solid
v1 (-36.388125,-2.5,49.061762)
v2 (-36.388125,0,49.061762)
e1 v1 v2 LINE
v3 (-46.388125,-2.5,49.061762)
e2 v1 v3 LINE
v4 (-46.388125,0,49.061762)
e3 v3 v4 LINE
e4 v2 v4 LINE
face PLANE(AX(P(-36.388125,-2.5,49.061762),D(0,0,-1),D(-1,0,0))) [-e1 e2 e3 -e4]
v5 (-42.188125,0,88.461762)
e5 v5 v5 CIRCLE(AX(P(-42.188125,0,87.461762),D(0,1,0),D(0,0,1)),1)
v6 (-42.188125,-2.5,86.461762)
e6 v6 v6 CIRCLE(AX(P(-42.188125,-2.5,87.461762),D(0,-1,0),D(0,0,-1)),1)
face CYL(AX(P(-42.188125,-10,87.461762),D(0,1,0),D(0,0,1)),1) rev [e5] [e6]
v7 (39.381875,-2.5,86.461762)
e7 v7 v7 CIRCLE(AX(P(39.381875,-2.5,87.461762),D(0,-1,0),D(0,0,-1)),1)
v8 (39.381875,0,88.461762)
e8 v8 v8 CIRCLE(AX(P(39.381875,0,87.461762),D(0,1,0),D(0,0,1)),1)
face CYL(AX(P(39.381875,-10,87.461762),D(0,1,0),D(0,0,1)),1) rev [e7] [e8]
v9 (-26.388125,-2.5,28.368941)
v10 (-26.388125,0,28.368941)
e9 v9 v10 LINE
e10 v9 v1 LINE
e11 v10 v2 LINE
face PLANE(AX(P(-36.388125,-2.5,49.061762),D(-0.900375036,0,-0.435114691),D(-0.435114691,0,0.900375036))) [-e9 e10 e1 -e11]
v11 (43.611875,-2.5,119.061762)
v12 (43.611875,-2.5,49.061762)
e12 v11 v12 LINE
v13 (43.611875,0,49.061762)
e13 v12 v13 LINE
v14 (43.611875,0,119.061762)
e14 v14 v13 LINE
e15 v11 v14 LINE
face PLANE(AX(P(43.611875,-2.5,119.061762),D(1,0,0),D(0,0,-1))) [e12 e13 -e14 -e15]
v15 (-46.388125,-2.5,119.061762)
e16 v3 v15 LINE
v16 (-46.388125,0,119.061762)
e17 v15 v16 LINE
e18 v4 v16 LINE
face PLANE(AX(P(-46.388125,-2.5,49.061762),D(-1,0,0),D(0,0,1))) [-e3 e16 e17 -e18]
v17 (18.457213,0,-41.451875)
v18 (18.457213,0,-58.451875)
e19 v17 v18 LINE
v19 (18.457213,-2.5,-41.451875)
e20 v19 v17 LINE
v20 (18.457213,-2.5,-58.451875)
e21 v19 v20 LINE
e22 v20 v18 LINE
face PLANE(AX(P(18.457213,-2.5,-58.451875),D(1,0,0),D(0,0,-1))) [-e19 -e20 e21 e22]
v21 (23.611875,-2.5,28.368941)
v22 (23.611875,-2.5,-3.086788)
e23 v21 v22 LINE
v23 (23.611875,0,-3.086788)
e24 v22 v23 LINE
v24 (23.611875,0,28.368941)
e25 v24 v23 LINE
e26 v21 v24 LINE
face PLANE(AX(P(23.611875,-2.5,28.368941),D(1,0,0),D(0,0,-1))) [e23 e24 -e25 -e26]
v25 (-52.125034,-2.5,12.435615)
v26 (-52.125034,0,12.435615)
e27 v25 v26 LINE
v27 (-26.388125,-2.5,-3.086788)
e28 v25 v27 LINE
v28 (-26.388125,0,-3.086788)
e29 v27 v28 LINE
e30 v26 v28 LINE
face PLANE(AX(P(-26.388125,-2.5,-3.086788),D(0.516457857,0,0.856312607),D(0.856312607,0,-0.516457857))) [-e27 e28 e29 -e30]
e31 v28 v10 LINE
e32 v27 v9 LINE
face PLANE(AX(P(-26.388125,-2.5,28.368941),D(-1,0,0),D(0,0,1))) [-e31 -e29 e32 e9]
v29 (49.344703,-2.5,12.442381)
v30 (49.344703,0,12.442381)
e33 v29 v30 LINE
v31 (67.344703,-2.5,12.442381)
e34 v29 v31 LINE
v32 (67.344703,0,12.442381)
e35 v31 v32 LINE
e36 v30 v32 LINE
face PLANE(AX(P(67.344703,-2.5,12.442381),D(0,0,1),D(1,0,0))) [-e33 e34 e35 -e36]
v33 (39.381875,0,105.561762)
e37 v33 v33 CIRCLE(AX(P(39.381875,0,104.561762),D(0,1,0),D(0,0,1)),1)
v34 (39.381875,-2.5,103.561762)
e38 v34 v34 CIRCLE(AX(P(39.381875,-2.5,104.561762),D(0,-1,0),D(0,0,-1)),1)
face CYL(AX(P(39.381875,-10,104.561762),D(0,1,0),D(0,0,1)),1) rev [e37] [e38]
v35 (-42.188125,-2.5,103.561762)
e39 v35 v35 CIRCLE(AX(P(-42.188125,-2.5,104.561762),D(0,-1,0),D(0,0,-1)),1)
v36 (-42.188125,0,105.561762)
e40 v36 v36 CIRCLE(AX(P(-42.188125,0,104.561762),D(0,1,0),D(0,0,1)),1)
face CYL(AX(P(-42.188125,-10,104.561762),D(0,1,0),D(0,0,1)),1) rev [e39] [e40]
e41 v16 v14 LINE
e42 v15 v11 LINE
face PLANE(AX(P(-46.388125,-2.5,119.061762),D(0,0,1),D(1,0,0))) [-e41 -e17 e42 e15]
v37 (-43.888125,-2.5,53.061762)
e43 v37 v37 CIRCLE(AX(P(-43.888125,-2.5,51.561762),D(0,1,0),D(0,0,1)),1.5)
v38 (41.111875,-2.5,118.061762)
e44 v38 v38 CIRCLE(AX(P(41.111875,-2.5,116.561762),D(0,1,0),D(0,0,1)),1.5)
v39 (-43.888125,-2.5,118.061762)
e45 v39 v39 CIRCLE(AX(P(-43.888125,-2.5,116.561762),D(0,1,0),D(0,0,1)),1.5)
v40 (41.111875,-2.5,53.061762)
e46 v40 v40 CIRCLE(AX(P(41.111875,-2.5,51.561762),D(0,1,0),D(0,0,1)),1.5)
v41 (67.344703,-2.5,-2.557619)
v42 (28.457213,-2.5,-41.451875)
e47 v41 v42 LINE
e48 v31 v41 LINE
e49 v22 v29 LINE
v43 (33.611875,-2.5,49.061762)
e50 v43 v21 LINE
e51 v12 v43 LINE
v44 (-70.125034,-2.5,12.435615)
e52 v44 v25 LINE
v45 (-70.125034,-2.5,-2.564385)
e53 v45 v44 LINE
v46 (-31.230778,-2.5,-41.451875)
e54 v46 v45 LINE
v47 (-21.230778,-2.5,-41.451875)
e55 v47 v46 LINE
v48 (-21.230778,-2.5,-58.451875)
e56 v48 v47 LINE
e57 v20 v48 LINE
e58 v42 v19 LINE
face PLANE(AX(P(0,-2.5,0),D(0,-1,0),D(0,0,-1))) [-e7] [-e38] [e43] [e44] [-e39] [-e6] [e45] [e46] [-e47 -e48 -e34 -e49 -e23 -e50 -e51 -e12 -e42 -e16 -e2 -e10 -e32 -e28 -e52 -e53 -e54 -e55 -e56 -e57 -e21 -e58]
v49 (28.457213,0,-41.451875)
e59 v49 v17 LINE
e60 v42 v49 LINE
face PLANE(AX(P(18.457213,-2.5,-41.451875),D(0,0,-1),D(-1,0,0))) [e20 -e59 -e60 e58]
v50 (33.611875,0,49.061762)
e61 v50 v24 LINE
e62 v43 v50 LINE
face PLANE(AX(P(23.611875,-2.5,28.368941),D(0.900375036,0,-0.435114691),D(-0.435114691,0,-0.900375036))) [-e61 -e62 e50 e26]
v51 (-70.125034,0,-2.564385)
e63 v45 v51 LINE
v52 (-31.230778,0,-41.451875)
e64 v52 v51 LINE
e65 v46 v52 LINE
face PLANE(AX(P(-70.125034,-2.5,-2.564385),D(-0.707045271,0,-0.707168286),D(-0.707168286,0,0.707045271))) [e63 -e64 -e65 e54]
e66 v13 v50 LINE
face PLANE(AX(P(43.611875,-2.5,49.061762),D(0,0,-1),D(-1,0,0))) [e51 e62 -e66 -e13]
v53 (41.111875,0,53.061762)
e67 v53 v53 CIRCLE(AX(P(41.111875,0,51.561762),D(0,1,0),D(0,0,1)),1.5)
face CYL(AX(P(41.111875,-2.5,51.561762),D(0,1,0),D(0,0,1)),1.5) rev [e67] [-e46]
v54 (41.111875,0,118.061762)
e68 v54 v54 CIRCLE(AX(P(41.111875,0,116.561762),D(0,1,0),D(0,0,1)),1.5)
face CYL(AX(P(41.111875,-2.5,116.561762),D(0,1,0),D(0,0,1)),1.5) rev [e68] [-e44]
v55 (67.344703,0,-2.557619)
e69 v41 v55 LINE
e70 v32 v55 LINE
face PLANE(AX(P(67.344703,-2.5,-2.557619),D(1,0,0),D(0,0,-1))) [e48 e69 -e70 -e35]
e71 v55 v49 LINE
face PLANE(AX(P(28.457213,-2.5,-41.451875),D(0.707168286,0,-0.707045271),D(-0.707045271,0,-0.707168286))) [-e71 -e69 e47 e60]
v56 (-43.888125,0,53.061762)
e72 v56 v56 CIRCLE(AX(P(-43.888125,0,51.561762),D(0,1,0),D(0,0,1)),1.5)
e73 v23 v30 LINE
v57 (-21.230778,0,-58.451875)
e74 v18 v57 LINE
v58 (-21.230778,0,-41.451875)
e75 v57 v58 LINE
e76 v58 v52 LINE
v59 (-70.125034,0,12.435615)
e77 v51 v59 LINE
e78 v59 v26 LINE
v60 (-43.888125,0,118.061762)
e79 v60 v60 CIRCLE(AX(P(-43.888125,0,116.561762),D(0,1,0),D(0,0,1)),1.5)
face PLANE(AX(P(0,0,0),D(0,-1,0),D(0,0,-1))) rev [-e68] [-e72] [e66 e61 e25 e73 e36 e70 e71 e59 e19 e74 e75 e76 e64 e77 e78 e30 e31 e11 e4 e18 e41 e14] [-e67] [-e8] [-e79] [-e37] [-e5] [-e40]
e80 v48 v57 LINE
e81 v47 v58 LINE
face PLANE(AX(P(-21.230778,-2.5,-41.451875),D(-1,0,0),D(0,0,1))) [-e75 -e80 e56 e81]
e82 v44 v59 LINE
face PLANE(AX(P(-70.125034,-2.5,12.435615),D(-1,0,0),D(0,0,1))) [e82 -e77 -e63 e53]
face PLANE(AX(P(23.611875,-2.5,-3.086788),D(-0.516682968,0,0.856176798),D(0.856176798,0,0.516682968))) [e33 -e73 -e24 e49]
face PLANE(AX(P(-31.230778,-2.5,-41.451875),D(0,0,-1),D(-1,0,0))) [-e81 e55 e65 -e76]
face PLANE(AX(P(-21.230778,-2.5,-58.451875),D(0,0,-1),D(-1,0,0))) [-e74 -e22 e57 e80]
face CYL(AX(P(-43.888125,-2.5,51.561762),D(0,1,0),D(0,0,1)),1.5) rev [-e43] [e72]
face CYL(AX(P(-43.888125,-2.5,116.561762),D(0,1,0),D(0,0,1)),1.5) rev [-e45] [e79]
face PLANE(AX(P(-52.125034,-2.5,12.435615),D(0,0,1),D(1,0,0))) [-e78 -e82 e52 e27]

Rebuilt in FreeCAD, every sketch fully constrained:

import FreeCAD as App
import Part
import Sketcher
from FreeCAD import Vector
Q = App.Units.Quantity


def add_polygon(sketch, points):
    """Adds a closed chain of lines whose ends are joined by coincident constraints."""
    first, n = sketch.GeometryCount, len(points)
    for a, b in zip(points, points[1:] + points[:1]):
        sketch.addGeometry(Part.LineSegment(App.Vector(*a, 0), App.Vector(*b, 0)), False)
    for i in range(n):
        sketch.addConstraint(Sketcher.Constraint("Coincident", first + i, 2, first + (i + 1) % n, 1))

doc = App.newDocument("Part")
params = doc.addObject("Spreadsheet::Sheet", "Params")
for row, (alias, value) in enumerate([
    ("sketch1_diameter", "3 mm"),
    ("sketch1_width", "10 mm"),
    ("sketch1_width2", "90 mm"),
    ("sketch1_width3", "18 mm"),
    ("sketch1_height", "70 mm"),
    ("pad1_length", "2.5 mm"),
    ("sketch2_diameter", "2 mm"),
    ("pocket1_length", "10 mm"),
    ("sketch3_diameter", "2 mm"),
    ("pocket2_length", "10 mm"),
], start=1):
    params.set(f"A{row}", alias)
    params.set(f"B{row}", "=" + value)
    params.setAlias(f"B{row}", alias)

body = doc.addObject("PartDesign::Body", "Body")

sketch1 = body.newObject("Sketcher::SketchObject", "Sketch")
sketch1.AttachmentSupport = (doc.getObject("XZ_Plane"), [""])
sketch1.MapMode = "FlatFace"
add_polygon(sketch1, [(-36.4, 49.1), (-46.4, 49.1), (-46.4, 119.1), (43.6, 119.1), (43.6, 49.1), (33.6, 49.1), (23.6, 28.4), (23.6, -3.1), (49.3, 12.4), (67.3, 12.4), (67.3, -2.6), (28.5, -41.5), (18.5, -41.5), (18.5, -58.5), (-21.2, -58.5), (-21.2, -41.5), (-31.2, -41.5), (-70.1, -2.6), (-70.1, 12.4), (-52.1, 12.4), (-26.4, -3.1), (-26.4, 28.4)])
sketch1.addGeometry(Part.Circle(Vector(-43.9, 116.6, 0), Vector(0, 0, 1), 1.5), False)
sketch1.addGeometry(Part.Circle(Vector(41.1, 116.6, 0), Vector(0, 0, 1), 1.5), False)
sketch1.addGeometry(Part.Circle(Vector(-43.9, 51.6, 0), Vector(0, 0, 1), 1.5), False)
sketch1.addGeometry(Part.Circle(Vector(41.1, 51.6, 0), Vector(0, 0, 1), 1.5), False)
sketch1.addConstraint([
    Sketcher.Constraint("Horizontal", 0),
    Sketcher.Constraint("Vertical", 1),
    Sketcher.Constraint("Horizontal", 2),
    Sketcher.Constraint("Vertical", 3),
    Sketcher.Constraint("Horizontal", 4),
    Sketcher.Constraint("Vertical", 6),
    Sketcher.Constraint("Horizontal", 8),
    Sketcher.Constraint("Vertical", 9),
    Sketcher.Constraint("Horizontal", 11),
    Sketcher.Constraint("Vertical", 12),
    Sketcher.Constraint("Horizontal", 13),
    Sketcher.Constraint("Vertical", 14),
    Sketcher.Constraint("Horizontal", 15),
    Sketcher.Constraint("Vertical", 17),
    Sketcher.Constraint("Horizontal", 18),
    Sketcher.Constraint("Vertical", 20),
    Sketcher.Constraint("Equal", 22, 23),
    Sketcher.Constraint("Equal", 23, 24),
    Sketcher.Constraint("Equal", 24, 25),
    Sketcher.Constraint("Perpendicular", 10, 16),
    Sketcher.Constraint("Horizontal", 22, 3, 23, 3),
    Sketcher.Constraint("Horizontal", 24, 3, 25, 3),
    Sketcher.Constraint("Horizontal", 0, 2, 3, 2),
    Sketcher.Constraint("Horizontal", 11, 2, 14, 2),
    Sketcher.Constraint("Horizontal", 6, 2, 19, 2),
    Sketcher.Constraint("Horizontal", 5, 2, 20, 2),
    Sketcher.Constraint("Vertical", 22, 3, 24, 3),
    Sketcher.Constraint("Vertical", 23, 3, 25, 3),
    Sketcher.Constraint("Equal", 0, 4),
    Sketcher.Constraint("Equal", 4, 11),
    Sketcher.Constraint("Equal", 11, 15),
    Sketcher.Constraint("Equal", 8, 18),
    Sketcher.Constraint("Equal", 9, 17),
    Sketcher.Constraint("Equal", 10, 16),
    Sketcher.Constraint("Equal", 7, 19),
    Sketcher.Constraint("Equal", 5, 21),
    Sketcher.Constraint("Diameter", 22, Q("3 mm")),
    Sketcher.Constraint("DistanceX", 0, 2, 0, 1, Q("10 mm")),
    Sketcher.Constraint("DistanceX", 2, 1, 2, 2, Q("90 mm")),
    Sketcher.Constraint("DistanceX", 8, 1, 8, 2, Q("18 mm")),
    Sketcher.Constraint("DistanceY", 1, 1, 1, 2, Q("70 mm")),
    Sketcher.Constraint("DistanceY", 9, 2, 9, 1, Q("15 mm")),
    Sketcher.Constraint("DistanceY", 12, 2, 12, 1, Q("17 mm")),
    Sketcher.Constraint("Distance", 10, Q("55 mm")),
    Sketcher.Constraint("DistanceX", 22, 3, 23, 3, Q("85 mm")),
    Sketcher.Constraint("DistanceY", 24, 3, 22, 3, Q("65 mm")),
    Sketcher.Constraint("DistanceX", 5, 2, 4, 2, Q("10 mm")),
    Sketcher.Constraint("Angle", 7, Q("31.110013 deg")),
    Sketcher.Constraint("DistanceX", 0, 2, 24, 3, Q("2.5 mm")),
    Sketcher.Constraint("DistanceY", 0, 2, 24, 3, Q("2.5 mm")),
    Sketcher.Constraint("DistanceX", 13, 2, 13, 1, Q("39.687991 mm")),
    Sketcher.Constraint("DistanceY", 6, 2, 6, 1, Q("31.455729 mm")),
    Sketcher.Constraint("DistanceY", -1, 1, 5, 2, Q("28.368941 mm")),
    Sketcher.Constraint("DistanceY", -1, 1, 7, 2, Q("12.442381 mm")),
    Sketcher.Constraint("DistanceX", 13, 2, -1, 1, Q("21.230778 mm")),
    Sketcher.Constraint("DistanceY", 5, 2, 4, 2, Q("20.692821 mm")),
])
sketch1.setExpression("Constraints[58]", "Params.sketch1_diameter")
sketch1.setExpression("Constraints[59]", "Params.sketch1_width")
sketch1.setExpression("Constraints[60]", "Params.sketch1_width2")
sketch1.setExpression("Constraints[61]", "Params.sketch1_width3")
sketch1.setExpression("Constraints[62]", "Params.sketch1_height")
pad1 = body.newObject("PartDesign::Pad", "Pad")
pad1.Profile = sketch1
pad1.setExpression("Length", "Params.pad1_length")

sketch2 = body.newObject("Sketcher::SketchObject", "Sketch001")
sketch2.AttachmentSupport = (doc.getObject("XZ_Plane"), [""])
sketch2.MapMode = "FlatFace"
sketch2.addGeometry([
    Part.Circle(Vector(-42.2, 87.5, 0), Vector(0, 0, 1), 1),
    Part.Circle(Vector(-42.2, 104.6, 0), Vector(0, 0, 1), 1),
], False)
sketch2.addConstraint([
    Sketcher.Constraint("Equal", 0, 1),
    Sketcher.Constraint("Vertical", 0, 3, 1, 3),
    Sketcher.Constraint("Diameter", 0, Q("2 mm")),
    Sketcher.Constraint("DistanceY", 0, 3, 1, 3, Q("17.1 mm")),
    Sketcher.Constraint("DistanceX", 0, 3, -1, 1, Q("42.188125 mm")),
    Sketcher.Constraint("DistanceY", -1, 1, 0, 3, Q("87.461762 mm")),
])
sketch2.setExpression("Constraints[2]", "Params.sketch2_diameter")
pocket1 = body.newObject("PartDesign::Pocket", "Pocket")
pocket1.Profile = sketch2
pocket1.setExpression("Length", "Params.pocket1_length")
pocket1.Reversed = True

sketch3 = body.newObject("Sketcher::SketchObject", "Sketch002")
sketch3.AttachmentSupport = (doc.getObject("XZ_Plane"), [""])
sketch3.MapMode = "FlatFace"
sketch3.addGeometry([
    Part.Circle(Vector(39.4, 87.5, 0), Vector(0, 0, 1), 1),
    Part.Circle(Vector(39.4, 104.6, 0), Vector(0, 0, 1), 1),
], False)
sketch3.addConstraint([
    Sketcher.Constraint("Equal", 0, 1),
    Sketcher.Constraint("Vertical", 0, 3, 1, 3),
    Sketcher.Constraint("Diameter", 0, Q("2 mm")),
    Sketcher.Constraint("DistanceY", 0, 3, 1, 3, Q("17.1 mm")),
    Sketcher.Constraint("DistanceX", -1, 1, 0, 3, Q("39.381875 mm")),
    Sketcher.Constraint("DistanceY", -1, 1, 0, 3, Q("87.461762 mm")),
])
sketch3.setExpression("Constraints[2]", "Params.sketch3_diameter")
pocket2 = body.newObject("PartDesign::Pocket", "Pocket001")
pocket2.Profile = sketch3
pocket2.setExpression("Length", "Params.pocket2_length")
pocket2.Reversed = True

doc.recompute()
